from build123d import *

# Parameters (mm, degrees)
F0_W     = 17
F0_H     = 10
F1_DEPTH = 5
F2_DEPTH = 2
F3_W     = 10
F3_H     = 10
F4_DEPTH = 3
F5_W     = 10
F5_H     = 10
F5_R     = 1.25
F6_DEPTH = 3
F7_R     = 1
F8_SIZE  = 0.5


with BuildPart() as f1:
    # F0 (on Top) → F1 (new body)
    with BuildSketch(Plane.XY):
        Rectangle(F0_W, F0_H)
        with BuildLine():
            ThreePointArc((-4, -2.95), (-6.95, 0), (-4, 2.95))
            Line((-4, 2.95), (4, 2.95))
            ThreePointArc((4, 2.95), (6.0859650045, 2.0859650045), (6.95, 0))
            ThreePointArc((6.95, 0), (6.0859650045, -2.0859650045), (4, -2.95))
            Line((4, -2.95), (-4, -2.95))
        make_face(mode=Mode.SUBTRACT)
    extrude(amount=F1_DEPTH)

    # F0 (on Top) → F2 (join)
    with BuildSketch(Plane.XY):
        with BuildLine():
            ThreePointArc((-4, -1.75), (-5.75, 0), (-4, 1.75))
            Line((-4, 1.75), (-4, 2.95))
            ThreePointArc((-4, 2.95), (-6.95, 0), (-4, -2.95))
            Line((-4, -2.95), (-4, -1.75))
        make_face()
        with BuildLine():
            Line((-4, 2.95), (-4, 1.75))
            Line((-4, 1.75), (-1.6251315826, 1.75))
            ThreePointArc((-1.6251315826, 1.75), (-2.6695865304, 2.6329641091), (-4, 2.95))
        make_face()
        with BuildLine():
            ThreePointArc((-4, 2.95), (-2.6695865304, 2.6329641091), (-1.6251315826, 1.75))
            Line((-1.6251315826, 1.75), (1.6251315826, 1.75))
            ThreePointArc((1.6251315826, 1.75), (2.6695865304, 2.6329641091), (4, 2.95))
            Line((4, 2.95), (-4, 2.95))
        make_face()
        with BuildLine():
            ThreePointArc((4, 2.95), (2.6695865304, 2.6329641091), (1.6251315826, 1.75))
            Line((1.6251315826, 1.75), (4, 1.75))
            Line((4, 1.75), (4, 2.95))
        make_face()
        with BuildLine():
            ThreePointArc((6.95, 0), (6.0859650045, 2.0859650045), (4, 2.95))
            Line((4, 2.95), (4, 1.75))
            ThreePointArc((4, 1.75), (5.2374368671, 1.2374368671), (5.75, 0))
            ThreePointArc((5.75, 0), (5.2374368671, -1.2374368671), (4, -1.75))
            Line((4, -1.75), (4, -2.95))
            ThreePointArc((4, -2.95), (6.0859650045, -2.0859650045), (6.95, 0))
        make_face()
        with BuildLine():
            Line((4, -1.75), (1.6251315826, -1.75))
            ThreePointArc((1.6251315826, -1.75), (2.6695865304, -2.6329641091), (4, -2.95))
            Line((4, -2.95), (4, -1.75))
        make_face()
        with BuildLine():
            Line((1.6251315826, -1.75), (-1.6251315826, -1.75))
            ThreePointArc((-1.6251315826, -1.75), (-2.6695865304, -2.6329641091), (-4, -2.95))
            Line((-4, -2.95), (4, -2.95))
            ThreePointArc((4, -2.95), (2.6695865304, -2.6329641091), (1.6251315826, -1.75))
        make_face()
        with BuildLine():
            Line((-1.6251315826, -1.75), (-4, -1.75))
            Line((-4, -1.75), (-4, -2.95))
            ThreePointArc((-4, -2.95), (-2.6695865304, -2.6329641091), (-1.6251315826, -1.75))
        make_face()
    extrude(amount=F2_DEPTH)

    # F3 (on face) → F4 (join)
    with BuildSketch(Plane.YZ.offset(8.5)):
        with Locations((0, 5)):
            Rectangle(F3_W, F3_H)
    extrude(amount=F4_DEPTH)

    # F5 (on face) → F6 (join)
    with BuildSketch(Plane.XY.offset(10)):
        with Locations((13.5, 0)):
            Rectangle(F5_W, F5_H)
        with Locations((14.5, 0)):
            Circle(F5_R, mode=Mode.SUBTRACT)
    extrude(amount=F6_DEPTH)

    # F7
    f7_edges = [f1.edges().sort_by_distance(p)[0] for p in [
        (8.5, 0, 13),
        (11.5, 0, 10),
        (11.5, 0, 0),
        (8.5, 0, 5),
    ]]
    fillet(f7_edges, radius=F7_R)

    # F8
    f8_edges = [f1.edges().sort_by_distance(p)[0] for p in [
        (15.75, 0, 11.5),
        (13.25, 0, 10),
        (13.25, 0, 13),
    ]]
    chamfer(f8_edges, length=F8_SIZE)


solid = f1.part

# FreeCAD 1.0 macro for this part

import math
import FreeCAD as App
import Part
import Sketcher
from FreeCAD import Vector


def edges_at(feature, points):
    """Names of the edges that pass closest to the given points."""
    edges = feature.Shape.Edges
    near = lambda p: min(range(len(edges)), key=lambda i: edges[i].distToShape(Part.Vertex(*p))[0])
    return sorted({f"Edge{near(p) + 1}" for p in points})

doc = App.newDocument("Part")
body = doc.addObject("PartDesign::Body", "Body")

sketch1 = doc.addObject("Sketcher::SketchObject", "Sketch")
body.addObject(sketch1)
sketch1.AttachmentSupport = (doc.XY_Plane, [""])
sketch1.MapMode = "FlatFace"
sketch1.addGeometry(Part.LineSegment(Vector(-8.5, 5, 0), Vector(-8.5, -5, 0)), False)
sketch1.addGeometry(Part.LineSegment(Vector(-8.5, -5, 0), Vector(8.5, -5, 0)), False)
sketch1.addGeometry(Part.LineSegment(Vector(8.5, -5, 0), Vector(8.5, 5, 0)), False)
sketch1.addGeometry(Part.LineSegment(Vector(8.5, 5, 0), Vector(-8.5, 5, 0)), False)
sketch1.addGeometry(Part.LineSegment(Vector(4, -2.95, 0), Vector(-4, -2.95, 0)), False)
sketch1.addGeometry(Part.ArcOfCircle(Part.Circle(Vector(-4, 0, 0), Vector(0, 0, 1), 2.95), math.radians(90), math.radians(270)), False)
sketch1.addGeometry(Part.LineSegment(Vector(-4, 2.95, 0), Vector(4, 2.95, 0)), False)
sketch1.addGeometry(Part.ArcOfCircle(Part.Circle(Vector(4, 0, 0), Vector(0, 0, 1), 2.95), math.radians(-90), math.radians(90)), False)
sketch1.addConstraint(Sketcher.Constraint("Coincident", 0, 2, 1, 1))
sketch1.addConstraint(Sketcher.Constraint("Coincident", 1, 2, 2, 1))
sketch1.addConstraint(Sketcher.Constraint("Coincident", 2, 2, 3, 1))
sketch1.addConstraint(Sketcher.Constraint("Coincident", 3, 2, 0, 1))
sketch1.addConstraint(Sketcher.Constraint("Tangent", 4, 2, 5, 2))
sketch1.addConstraint(Sketcher.Constraint("Tangent", 5, 1, 6, 1))
sketch1.addConstraint(Sketcher.Constraint("Tangent", 6, 2, 7, 2))
sketch1.addConstraint(Sketcher.Constraint("Tangent", 7, 1, 4, 1))
sketch1.addConstraint(Sketcher.Constraint("Vertical", 0))
sketch1.addConstraint(Sketcher.Constraint("Horizontal", 1))
sketch1.addConstraint(Sketcher.Constraint("Vertical", 2))
sketch1.addConstraint(Sketcher.Constraint("Horizontal", 3))
sketch1.addConstraint(Sketcher.Constraint("Horizontal", 4))
sketch1.addConstraint(Sketcher.Constraint("Horizontal", 6))
sketch1.addConstraint(Sketcher.Constraint("Symmetric", 5, 3, 7, 3, -1, 1))
sketch1.addConstraint(Sketcher.Constraint("Symmetric", 0, 2, 2, 2, -1, 1))
sketch1.addConstraint(Sketcher.Constraint("DistanceX", 1, 1, 1, 2, 17.0))
sketch1.addConstraint(Sketcher.Constraint("DistanceX", 4, 2, 4, 1, 8.0))
sketch1.addConstraint(Sketcher.Constraint("DistanceY", 0, 2, 0, 1, 10.0))
sketch1.addConstraint(Sketcher.Constraint("Radius", 5, 2.95))
pad1 = doc.addObject("PartDesign::Pad", "Pad")
body.addObject(pad1)
pad1.Profile = sketch1
pad1.Length = 5

sketch2 = doc.addObject("Sketcher::SketchObject", "Sketch001")
body.addObject(sketch2)
sketch2.AttachmentSupport = (doc.XY_Plane, [""])
sketch2.MapMode = "FlatFace"
sketch2.addGeometry(Part.ArcOfCircle(Part.Circle(Vector(-4, 0, 0), Vector(0, 0, 1), 2.95), math.radians(90), math.radians(270)), False)
sketch2.addGeometry(Part.LineSegment(Vector(-4, -2.95, 0), Vector(4, -2.95, 0)), False)
sketch2.addGeometry(Part.ArcOfCircle(Part.Circle(Vector(4, 0, 0), Vector(0, 0, 1), 2.95), math.radians(-90), math.radians(90)), False)
sketch2.addGeometry(Part.LineSegment(Vector(4, 2.95, 0), Vector(-4, 2.95, 0)), False)
sketch2.addGeometry(Part.LineSegment(Vector(4, -1.75, 0), Vector(-4, -1.75, 0)), False)
sketch2.addGeometry(Part.ArcOfCircle(Part.Circle(Vector(-4, 0, 0), Vector(0, 0, 1), 1.75), math.radians(90), math.radians(270)), False)
sketch2.addGeometry(Part.LineSegment(Vector(-4, 1.75, 0), Vector(4, 1.75, 0)), False)
sketch2.addGeometry(Part.ArcOfCircle(Part.Circle(Vector(4, 0, 0), Vector(0, 0, 1), 1.75), math.radians(0), math.radians(90)), False)
sketch2.addGeometry(Part.ArcOfCircle(Part.Circle(Vector(4, 0, 0), Vector(0, 0, 1), 1.75), math.radians(-90), math.radians(0)), False)
sketch2.addConstraint(Sketcher.Constraint("Tangent", 0, 2, 1, 1))
sketch2.addConstraint(Sketcher.Constraint("Tangent", 1, 2, 2, 1))
sketch2.addConstraint(Sketcher.Constraint("Tangent", 2, 2, 3, 1))
sketch2.addConstraint(Sketcher.Constraint("Tangent", 3, 2, 0, 1))
sketch2.addConstraint(Sketcher.Constraint("Tangent", 4, 2, 5, 2))
sketch2.addConstraint(Sketcher.Constraint("Tangent", 5, 1, 6, 1))
sketch2.addConstraint(Sketcher.Constraint("Tangent", 6, 2, 7, 2))
sketch2.addConstraint(Sketcher.Constraint("Tangent", 7, 1, 8, 2))
sketch2.addConstraint(Sketcher.Constraint("Tangent", 8, 1, 4, 1))
sketch2.addConstraint(Sketcher.Constraint("Horizontal", 1))
sketch2.addConstraint(Sketcher.Constraint("Horizontal", 3))
sketch2.addConstraint(Sketcher.Constraint("Horizontal", 4))
sketch2.addConstraint(Sketcher.Constraint("Horizontal", 6))
sketch2.addConstraint(Sketcher.Constraint("Coincident", 5, 3, 0, 3))
sketch2.addConstraint(Sketcher.Constraint("Coincident", 7, 3, 2, 3))
sketch2.addConstraint(Sketcher.Constraint("Symmetric", 0, 3, 2, 3, -1, 1))
sketch2.addConstraint(Sketcher.Constraint("PointOnObject", 7, 1, -1))
sketch2.addConstraint(Sketcher.Constraint("DistanceX", 1, 1, 1, 2, 8.0))
sketch2.addConstraint(Sketcher.Constraint("Radius", 0, 2.95))
sketch2.addConstraint(Sketcher.Constraint("Radius", 5, 1.75))
pad2 = doc.addObject("PartDesign::Pad", "Pad001")
body.addObject(pad2)
pad2.Profile = sketch2
pad2.Length = 2

sketch3 = doc.addObject("Sketcher::SketchObject", "Sketch002")
body.addObject(sketch3)
sketch3.AttachmentSupport = (doc.YZ_Plane, [""])
sketch3.MapMode = "FlatFace"
sketch3.AttachmentOffset = App.Placement(Vector(0, 0, 8.5), App.Rotation())
sketch3.addGeometry(Part.LineSegment(Vector(-5, 10, 0), Vector(-5, 0, 0)), False)
sketch3.addGeometry(Part.LineSegment(Vector(-5, 0, 0), Vector(5, 0, 0)), False)
sketch3.addGeometry(Part.LineSegment(Vector(5, 0, 0), Vector(5, 10, 0)), False)
sketch3.addGeometry(Part.LineSegment(Vector(5, 10, 0), Vector(-5, 10, 0)), False)
sketch3.addConstraint(Sketcher.Constraint("Coincident", 0, 2, 1, 1))
sketch3.addConstraint(Sketcher.Constraint("Coincident", 1, 2, 2, 1))
sketch3.addConstraint(Sketcher.Constraint("Coincident", 2, 2, 3, 1))
sketch3.addConstraint(Sketcher.Constraint("Coincident", 3, 2, 0, 1))
sketch3.addConstraint(Sketcher.Constraint("Vertical", 0))
sketch3.addConstraint(Sketcher.Constraint("Horizontal", 1))
sketch3.addConstraint(Sketcher.Constraint("Vertical", 2))
sketch3.addConstraint(Sketcher.Constraint("Horizontal", 3))
sketch3.addConstraint(Sketcher.Constraint("Symmetric", 0, 2, 1, 2, -1, 1))
sketch3.addConstraint(Sketcher.Constraint("Equal", 3, 0))
sketch3.addConstraint(Sketcher.Constraint("DistanceX", 1, 1, 1, 2, 10.0))
pad3 = doc.addObject("PartDesign::Pad", "Pad002")
body.addObject(pad3)
pad3.Profile = sketch3
pad3.Length = 3

sketch4 = doc.addObject("Sketcher::SketchObject", "Sketch003")
body.addObject(sketch4)
sketch4.AttachmentSupport = (doc.XY_Plane, [""])
sketch4.MapMode = "FlatFace"
sketch4.AttachmentOffset = App.Placement(Vector(0, 0, 10), App.Rotation())
sketch4.addGeometry(Part.LineSegment(Vector(8.5, 5, 0), Vector(8.5, -5, 0)), False)
sketch4.addGeometry(Part.LineSegment(Vector(8.5, -5, 0), Vector(18.5, -5, 0)), False)
sketch4.addGeometry(Part.LineSegment(Vector(18.5, -5, 0), Vector(18.5, 5, 0)), False)
sketch4.addGeometry(Part.LineSegment(Vector(18.5, 5, 0), Vector(8.5, 5, 0)), False)
sketch4.addGeometry(Part.Circle(Vector(14.5, 0, 0), Vector(0, 0, 1), 1.25), False)
sketch4.addConstraint(Sketcher.Constraint("Coincident", 0, 2, 1, 1))
sketch4.addConstraint(Sketcher.Constraint("Coincident", 1, 2, 2, 1))
sketch4.addConstraint(Sketcher.Constraint("Coincident", 2, 2, 3, 1))
sketch4.addConstraint(Sketcher.Constraint("Coincident", 3, 2, 0, 1))
sketch4.addConstraint(Sketcher.Constraint("Vertical", 0))
sketch4.addConstraint(Sketcher.Constraint("Horizontal", 1))
sketch4.addConstraint(Sketcher.Constraint("Vertical", 2))
sketch4.addConstraint(Sketcher.Constraint("Horizontal", 3))
sketch4.addConstraint(Sketcher.Constraint("PointOnObject", 4, 3, -1))
sketch4.addConstraint(Sketcher.Constraint("Equal", 3, 0))
sketch4.addConstraint(Sketcher.Constraint("Diameter", 4, 2.5))
sketch4.addConstraint(Sketcher.Constraint("DistanceX", 1, 1, 1, 2, 10.0))
sketch4.addConstraint(Sketcher.Constraint("DistanceY", 0, 2, -1, 1, 5.0))
sketch4.addConstraint(Sketcher.Constraint("DistanceX", 0, 2, 4, 3, 6.0))
sketch4.addConstraint(Sketcher.Constraint("DistanceX", -1, 1, 4, 3, 14.5))
pad4 = doc.addObject("PartDesign::Pad", "Pad003")
body.addObject(pad4)
pad4.Profile = sketch4
pad4.Length = 3
doc.recompute()

fillet = doc.addObject("PartDesign::Fillet", "Fillet")
body.addObject(fillet)
fillet.Base = (pad4, edges_at(pad4, [
    (8.5, 0, 13),
    (11.5, 0, 10),
    (11.5, 0, 0),
    (8.5, 0, 5),
]))
fillet.Radius = 1
doc.recompute()

chamfer = doc.addObject("PartDesign::Chamfer", "Chamfer")
body.addObject(chamfer)
chamfer.Base = (fillet, edges_at(fillet, [(15.75, 0, 11.5), (13.25, 0, 10), (13.25, 0, 13)]))
chamfer.Size = 0.5

doc.recompute()
